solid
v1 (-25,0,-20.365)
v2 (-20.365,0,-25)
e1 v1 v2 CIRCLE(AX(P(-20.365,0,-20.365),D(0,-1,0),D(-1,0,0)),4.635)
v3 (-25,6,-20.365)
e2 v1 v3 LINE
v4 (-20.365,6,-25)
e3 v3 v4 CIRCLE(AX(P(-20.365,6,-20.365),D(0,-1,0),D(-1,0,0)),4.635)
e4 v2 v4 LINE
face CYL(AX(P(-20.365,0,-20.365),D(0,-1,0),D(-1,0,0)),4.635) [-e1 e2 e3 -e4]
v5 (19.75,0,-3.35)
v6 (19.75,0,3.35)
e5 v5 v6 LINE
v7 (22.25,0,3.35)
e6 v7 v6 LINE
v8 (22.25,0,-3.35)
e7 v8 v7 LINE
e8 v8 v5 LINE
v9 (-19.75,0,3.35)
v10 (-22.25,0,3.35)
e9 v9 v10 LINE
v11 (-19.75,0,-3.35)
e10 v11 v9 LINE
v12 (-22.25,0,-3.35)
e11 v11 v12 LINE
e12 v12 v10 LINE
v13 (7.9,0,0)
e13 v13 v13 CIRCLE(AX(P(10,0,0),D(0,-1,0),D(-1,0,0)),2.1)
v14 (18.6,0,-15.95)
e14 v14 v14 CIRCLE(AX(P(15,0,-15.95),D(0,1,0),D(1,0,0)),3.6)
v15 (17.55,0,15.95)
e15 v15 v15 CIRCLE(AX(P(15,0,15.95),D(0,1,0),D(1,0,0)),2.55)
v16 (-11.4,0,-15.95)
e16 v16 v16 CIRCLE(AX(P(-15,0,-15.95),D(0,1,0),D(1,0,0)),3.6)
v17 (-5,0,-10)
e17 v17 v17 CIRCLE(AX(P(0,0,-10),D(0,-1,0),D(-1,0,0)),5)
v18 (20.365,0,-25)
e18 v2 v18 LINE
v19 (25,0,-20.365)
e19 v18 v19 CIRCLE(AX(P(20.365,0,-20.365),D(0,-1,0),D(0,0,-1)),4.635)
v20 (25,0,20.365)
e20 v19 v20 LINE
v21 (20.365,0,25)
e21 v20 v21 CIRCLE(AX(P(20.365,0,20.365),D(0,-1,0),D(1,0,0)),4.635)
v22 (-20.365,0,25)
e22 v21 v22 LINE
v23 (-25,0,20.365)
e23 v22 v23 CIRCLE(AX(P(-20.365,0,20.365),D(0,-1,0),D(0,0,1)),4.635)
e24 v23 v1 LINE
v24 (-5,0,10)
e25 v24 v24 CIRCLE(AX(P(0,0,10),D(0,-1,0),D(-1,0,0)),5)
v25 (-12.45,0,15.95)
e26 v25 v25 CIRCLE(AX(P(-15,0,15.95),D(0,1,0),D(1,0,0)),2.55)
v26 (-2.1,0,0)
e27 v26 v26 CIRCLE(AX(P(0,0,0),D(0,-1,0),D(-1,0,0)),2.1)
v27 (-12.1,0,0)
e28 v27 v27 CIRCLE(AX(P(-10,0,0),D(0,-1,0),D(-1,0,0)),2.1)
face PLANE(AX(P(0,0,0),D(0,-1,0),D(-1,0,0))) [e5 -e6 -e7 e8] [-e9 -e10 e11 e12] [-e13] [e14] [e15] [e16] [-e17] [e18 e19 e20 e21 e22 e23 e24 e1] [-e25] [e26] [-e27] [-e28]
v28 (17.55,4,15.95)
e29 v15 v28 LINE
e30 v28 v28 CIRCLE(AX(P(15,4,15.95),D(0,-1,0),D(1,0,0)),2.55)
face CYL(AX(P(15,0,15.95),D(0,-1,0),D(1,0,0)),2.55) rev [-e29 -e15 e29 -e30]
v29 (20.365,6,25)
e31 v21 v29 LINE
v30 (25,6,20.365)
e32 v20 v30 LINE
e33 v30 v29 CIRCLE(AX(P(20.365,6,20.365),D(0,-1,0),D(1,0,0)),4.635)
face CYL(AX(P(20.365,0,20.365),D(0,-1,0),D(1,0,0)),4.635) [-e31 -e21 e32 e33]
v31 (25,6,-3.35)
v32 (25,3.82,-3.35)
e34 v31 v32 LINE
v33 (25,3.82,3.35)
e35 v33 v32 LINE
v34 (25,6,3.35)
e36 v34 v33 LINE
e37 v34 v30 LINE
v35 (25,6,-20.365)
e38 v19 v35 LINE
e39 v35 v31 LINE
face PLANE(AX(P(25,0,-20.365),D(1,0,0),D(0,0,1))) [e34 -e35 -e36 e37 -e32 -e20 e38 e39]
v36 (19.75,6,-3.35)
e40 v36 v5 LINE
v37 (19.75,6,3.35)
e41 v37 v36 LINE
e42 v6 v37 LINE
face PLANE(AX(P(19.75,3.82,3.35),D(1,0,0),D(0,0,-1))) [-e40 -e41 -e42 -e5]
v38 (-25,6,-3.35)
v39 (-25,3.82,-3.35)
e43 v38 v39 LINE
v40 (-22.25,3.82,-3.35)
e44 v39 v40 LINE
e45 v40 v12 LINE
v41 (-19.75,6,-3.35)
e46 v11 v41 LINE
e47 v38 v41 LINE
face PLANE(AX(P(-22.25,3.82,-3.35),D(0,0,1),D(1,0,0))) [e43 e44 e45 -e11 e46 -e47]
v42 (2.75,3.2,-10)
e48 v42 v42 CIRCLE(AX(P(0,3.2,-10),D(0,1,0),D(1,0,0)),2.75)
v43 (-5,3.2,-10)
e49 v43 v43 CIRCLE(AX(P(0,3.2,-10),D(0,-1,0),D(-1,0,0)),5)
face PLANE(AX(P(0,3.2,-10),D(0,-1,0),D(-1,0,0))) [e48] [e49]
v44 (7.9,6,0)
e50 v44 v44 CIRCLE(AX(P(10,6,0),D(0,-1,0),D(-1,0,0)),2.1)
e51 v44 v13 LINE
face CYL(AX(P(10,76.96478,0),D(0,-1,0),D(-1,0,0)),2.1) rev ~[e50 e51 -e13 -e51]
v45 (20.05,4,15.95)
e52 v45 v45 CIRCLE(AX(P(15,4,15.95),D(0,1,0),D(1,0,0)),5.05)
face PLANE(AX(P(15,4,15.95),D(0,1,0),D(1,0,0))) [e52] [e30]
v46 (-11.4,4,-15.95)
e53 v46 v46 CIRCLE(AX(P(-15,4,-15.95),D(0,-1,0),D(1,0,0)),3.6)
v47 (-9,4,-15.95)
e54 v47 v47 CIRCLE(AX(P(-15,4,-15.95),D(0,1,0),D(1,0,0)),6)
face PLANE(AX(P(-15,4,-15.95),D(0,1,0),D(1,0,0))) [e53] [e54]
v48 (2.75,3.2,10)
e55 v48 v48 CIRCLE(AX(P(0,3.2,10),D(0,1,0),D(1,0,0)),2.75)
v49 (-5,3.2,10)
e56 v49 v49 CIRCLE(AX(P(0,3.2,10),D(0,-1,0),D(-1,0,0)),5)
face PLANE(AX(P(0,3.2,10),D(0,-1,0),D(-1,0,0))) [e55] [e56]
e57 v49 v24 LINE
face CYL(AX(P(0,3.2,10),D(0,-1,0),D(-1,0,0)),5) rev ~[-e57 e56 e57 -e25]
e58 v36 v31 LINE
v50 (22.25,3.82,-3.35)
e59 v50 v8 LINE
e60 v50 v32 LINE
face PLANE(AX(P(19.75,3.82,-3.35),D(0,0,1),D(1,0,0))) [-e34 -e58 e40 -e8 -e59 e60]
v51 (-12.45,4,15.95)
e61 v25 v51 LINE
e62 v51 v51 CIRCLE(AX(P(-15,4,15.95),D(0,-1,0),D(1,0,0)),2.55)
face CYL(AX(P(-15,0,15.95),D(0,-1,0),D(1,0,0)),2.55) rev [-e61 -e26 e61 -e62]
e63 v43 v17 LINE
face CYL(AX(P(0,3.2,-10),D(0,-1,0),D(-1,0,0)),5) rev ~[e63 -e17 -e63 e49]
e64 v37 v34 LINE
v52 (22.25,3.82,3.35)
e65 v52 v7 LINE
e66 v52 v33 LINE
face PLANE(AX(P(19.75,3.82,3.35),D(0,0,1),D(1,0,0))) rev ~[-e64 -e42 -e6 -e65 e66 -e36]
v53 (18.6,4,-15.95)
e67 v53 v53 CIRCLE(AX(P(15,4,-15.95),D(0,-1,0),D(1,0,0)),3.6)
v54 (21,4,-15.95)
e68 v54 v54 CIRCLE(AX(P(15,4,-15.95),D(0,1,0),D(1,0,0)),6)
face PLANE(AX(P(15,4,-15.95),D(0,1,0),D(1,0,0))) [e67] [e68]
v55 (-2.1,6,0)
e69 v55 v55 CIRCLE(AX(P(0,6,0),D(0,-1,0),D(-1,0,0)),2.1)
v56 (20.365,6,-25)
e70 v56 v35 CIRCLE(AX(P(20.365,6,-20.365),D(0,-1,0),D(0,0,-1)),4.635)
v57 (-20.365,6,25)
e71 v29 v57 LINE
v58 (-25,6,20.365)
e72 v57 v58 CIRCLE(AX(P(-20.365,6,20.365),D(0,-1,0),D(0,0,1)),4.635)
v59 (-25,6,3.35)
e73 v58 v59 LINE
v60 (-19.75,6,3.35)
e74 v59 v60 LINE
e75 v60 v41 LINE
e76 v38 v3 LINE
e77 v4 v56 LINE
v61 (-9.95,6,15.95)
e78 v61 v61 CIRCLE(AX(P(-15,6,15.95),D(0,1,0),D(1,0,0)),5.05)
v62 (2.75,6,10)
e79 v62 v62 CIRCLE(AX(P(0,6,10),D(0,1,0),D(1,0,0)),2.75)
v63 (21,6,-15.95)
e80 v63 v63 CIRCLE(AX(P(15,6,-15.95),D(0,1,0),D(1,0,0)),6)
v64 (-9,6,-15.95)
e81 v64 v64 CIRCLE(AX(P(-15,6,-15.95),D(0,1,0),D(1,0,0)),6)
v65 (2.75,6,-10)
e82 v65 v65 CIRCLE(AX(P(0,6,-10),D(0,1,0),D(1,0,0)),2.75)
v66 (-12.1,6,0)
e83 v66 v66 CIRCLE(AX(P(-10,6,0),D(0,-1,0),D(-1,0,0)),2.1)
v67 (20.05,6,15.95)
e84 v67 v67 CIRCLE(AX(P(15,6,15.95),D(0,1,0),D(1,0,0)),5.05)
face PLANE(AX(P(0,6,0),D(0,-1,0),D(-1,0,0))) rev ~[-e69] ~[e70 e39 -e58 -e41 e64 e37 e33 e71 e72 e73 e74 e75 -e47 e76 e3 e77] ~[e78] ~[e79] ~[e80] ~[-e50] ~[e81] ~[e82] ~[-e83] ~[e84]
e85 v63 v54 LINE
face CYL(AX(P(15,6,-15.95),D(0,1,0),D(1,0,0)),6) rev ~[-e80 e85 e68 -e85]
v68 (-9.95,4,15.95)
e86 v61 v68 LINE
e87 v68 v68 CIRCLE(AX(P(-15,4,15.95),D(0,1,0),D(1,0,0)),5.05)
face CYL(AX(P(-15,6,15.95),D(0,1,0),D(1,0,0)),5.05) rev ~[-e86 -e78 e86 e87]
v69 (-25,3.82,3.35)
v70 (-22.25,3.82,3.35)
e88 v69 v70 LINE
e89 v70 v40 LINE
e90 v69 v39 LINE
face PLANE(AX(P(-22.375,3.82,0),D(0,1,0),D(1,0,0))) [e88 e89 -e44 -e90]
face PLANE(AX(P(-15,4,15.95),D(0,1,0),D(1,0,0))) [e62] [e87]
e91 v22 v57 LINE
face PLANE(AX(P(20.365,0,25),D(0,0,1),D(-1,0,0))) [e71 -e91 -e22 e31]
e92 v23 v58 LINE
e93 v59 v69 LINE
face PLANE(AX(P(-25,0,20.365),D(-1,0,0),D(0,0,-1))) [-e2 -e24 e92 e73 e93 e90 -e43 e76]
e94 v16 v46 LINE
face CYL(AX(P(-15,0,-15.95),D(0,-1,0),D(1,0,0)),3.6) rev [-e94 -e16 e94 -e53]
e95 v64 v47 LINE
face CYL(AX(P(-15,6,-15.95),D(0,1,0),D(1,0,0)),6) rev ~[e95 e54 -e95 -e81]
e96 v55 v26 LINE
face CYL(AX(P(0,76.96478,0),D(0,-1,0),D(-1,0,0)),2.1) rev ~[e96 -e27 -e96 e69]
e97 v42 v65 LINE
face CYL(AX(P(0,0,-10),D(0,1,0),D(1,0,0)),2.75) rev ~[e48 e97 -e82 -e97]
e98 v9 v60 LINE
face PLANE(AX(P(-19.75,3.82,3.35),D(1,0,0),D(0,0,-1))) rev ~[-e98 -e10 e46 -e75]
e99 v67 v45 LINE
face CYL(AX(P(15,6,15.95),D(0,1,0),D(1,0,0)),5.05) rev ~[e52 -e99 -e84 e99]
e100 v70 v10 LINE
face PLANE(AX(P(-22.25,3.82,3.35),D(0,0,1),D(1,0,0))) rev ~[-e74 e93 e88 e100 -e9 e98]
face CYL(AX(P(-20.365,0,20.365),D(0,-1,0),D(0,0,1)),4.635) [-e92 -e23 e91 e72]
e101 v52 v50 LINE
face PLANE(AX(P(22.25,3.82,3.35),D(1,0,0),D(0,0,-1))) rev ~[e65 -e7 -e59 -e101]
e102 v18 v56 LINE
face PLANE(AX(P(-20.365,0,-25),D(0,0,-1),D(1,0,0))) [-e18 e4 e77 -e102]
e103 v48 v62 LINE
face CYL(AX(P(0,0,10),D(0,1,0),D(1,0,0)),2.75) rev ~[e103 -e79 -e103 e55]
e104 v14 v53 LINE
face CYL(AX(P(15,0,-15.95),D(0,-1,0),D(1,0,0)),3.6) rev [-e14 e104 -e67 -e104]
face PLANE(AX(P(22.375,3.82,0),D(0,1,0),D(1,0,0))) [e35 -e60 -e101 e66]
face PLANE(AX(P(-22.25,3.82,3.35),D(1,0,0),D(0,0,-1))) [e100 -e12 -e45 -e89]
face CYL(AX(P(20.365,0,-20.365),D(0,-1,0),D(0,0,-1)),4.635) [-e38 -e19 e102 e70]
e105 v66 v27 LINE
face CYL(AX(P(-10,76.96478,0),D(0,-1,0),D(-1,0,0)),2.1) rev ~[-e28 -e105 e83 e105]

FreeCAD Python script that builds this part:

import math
import FreeCAD as App
import Part
import Sketcher

V = App.Vector


def add_polygon(sketch, points):
    """Adds a closed chain of lines whose ends are joined by coincident constraints."""
    first, n = sketch.GeometryCount, len(points)
    for a, b in zip(points, points[1:] + points[:1]):
        sketch.addGeometry(Part.LineSegment(App.Vector(*a, 0), App.Vector(*b, 0)), False)
    for i in range(n):
        sketch.addConstraint(Sketcher.Constraint("Coincident", first + i, 2, first + (i + 1) % n, 1))

doc = App.newDocument("Part")
params = doc.addObject("Spreadsheet::Sheet", "Params")
for row, (alias, value) in enumerate([
    ("sketch1_diameter", "5.1 mm"),
    ("sketch1_diameter2", "7.2 mm"),
    ("pad1_length", "6 mm"),
    ("sketch2_diameter", "4.2 mm"),
    ("hole_diameter", "4.2 mm"),
    ("sketch3_diameter", "12 mm"),
    ("sketch3_diameter2", "10.1 mm"),
    ("pocket1_length", "2 mm"),
    ("sketch4_height", "6.7 mm"),
    ("sketch4_width", "5.25 mm"),
    ("pocket2_length", "2.18 mm"),
    ("sketch5_width", "2.5 mm"),
    ("sketch5_height", "6.7 mm"),
    ("sketch6_diameter", "5.5 mm"),
    ("hole2_diameter", "5.5 mm"),
    ("hole2_cbore_diameter", "10 mm"),
    ("hole2_cbore_depth", "3.2 mm"),
], start=1):
    params.set(f"A{row}", alias)
    params.set(f"B{row}", "=" + value)
    params.setAlias(f"B{row}", alias)

body = doc.addObject("PartDesign::Body", "Body")

sketch1 = body.newObject("Sketcher::SketchObject", "Sketch")
sketch1.AttachmentSupport = (doc.getObject("XZ_Plane"), [""])
sketch1.MapMode = "FlatFace"
sketch1.addGeometry([
    Part.LineSegment(V(-20.4, 25, 0), V(20.4, 25, 0)),
    Part.ArcOfCircle(Part.Circle(V(20.4, 20.4, 0), V(0, 0, 1), 4.6), math.radians(0), math.radians(90)),
    Part.LineSegment(V(25, 20.4, 0), V(25, -20.4, 0)),
    Part.ArcOfCircle(Part.Circle(V(20.4, -20.4, 0), V(0, 0, 1), 4.6), math.radians(-90), math.radians(0)),
    Part.LineSegment(V(20.4, -25, 0), V(-20.4, -25, 0)),
    Part.ArcOfCircle(Part.Circle(V(-20.4, -20.4, 0), V(0, 0, 1), 4.6), math.radians(180), math.radians(270)),
    Part.LineSegment(V(-25, -20.4, 0), V(-25, 20.4, 0)),
    Part.ArcOfCircle(Part.Circle(V(-20.4, 20.4, 0), V(0, 0, 1), 4.6), math.radians(90), math.radians(180)),
    Part.Circle(V(15, 15.9, 0), V(0, 0, 1), 2.5),
    Part.Circle(V(-15, 15.9, 0), V(0, 0, 1), 2.5),
    Part.Circle(V(15, -15.9, 0), V(0, 0, 1), 3.6),
    Part.Circle(V(-15, -15.9, 0), V(0, 0, 1), 3.6),
], False)
sketch1.addConstraint([
    Sketcher.Constraint("Tangent", 0, 2, 1, 2),
    Sketcher.Constraint("Tangent", 1, 1, 2, 1),
    Sketcher.Constraint("Tangent", 2, 2, 3, 2),
    Sketcher.Constraint("Tangent", 3, 1, 4, 1),
    Sketcher.Constraint("Tangent", 4, 2, 5, 2),
    Sketcher.Constraint("Tangent", 5, 1, 6, 1),
    Sketcher.Constraint("Tangent", 6, 2, 7, 2),
    Sketcher.Constraint("Tangent", 7, 1, 0, 1),
    Sketcher.Constraint("Horizontal", 0),
    Sketcher.Constraint("Vertical", 2),
    Sketcher.Constraint("Horizontal", 4),
    Sketcher.Constraint("Vertical", 6),
    Sketcher.Constraint("Equal", 1, 3),
    Sketcher.Constraint("Equal", 3, 5),
    Sketcher.Constraint("Equal", 5, 7),
    Sketcher.Constraint("Equal", 8, 9),
    Sketcher.Constraint("Equal", 10, 11),
    Sketcher.Constraint("Symmetric", 1, 3, 5, 3, -1, 1),
    Sketcher.Constraint("Symmetric", 9, 3, 10, 3, -1, 1),
    Sketcher.Constraint("Symmetric", 8, 3, 11, 3, -1, 1),
    Sketcher.Constraint("Symmetric", 8, 3, 9, 3, -2),
    Sketcher.Constraint("Equal", 4, 2),
    Sketcher.Constraint("Diameter", 8, 5.1),
    Sketcher.Constraint("Diameter", 10, 7.2),
    Sketcher.Constraint("DistanceX", -1, 1, 8, 3, 15.0),
    Sketcher.Constraint("DistanceY", -1, 1, 0, 2, 25.0),
    Sketcher.Constraint("Radius", 1, 4.635),
    Sketcher.Constraint("DistanceY", 10, 3, 8, 3, 31.9),
])
sketch1.setExpression("Constraints[22]", "Params.sketch1_diameter")
sketch1.setExpression("Constraints[23]", "Params.sketch1_diameter2")
pad1 = body.newObject("PartDesign::Pad", "Pad")
pad1.Profile = sketch1
pad1.setExpression("Length", "Params.pad1_length")
pad1.Reversed = True

sketch2 = body.newObject("Sketcher::SketchObject", "Sketch001")
sketch2.AttachmentSupport = (doc.getObject("XZ_Plane"), [""])
sketch2.MapMode = "FlatFace"
sketch2.AttachmentOffset = App.Placement(V(0, 0, -6), App.Rotation())
sketch2.addGeometry([
    Part.Circle(V(0, -10, 0), V(0, 0, 1), 2.1),
    Part.Circle(V(-10, 0, 0), V(0, 0, 1), 2.1),
    Part.Circle(V(0, 0, 0), V(0, 0, 1), 2.1),
    Part.Circle(V(0, 10, 0), V(0, 0, 1), 2.1),
    Part.Circle(V(10, 0, 0), V(0, 0, 1), 2.1),
], False)
sketch2.addConstraint([
    Sketcher.Constraint("Coincident", 2, 3, -1, 1),
    Sketcher.Constraint("Equal", 0, 1),
    Sketcher.Constraint("Equal", 1, 2),
    Sketcher.Constraint("Equal", 2, 3),
    Sketcher.Constraint("Equal", 3, 4),
    Sketcher.Constraint("Symmetric", 0, 3, 3, 3, -1, 1),
    Sketcher.Constraint("Symmetric", 1, 3, 4, 3, -1, 1),
    Sketcher.Constraint("PointOnObject", 0, 3, -2),
    Sketcher.Constraint("PointOnObject", 1, 3, -1),
    Sketcher.Constraint("Diameter", 0, 4.2),
    Sketcher.Constraint("DistanceY", 0, 3, -1, 1, 10.0),
    Sketcher.Constraint("DistanceX", 1, 3, -1, 1, 10.0),
])
sketch2.setExpression("Constraints[9]", "Params.sketch2_diameter")
doc.recompute()
hole = body.newObject("PartDesign::Hole", "Hole")
hole.Profile = sketch2
hole.ThreadType = "None"
hole.setExpression("Diameter", "Params.hole_diameter")
hole.DepthType = "ThroughAll"
hole.Reversed = True

sketch3 = body.newObject("Sketcher::SketchObject", "Sketch002")
sketch3.AttachmentSupport = (doc.getObject("XZ_Plane"), [""])
sketch3.MapMode = "FlatFace"
sketch3.AttachmentOffset = App.Placement(V(0, 0, -6), App.Rotation())
sketch3.addGeometry([
    Part.Circle(V(-15, -16, 0), V(0, 0, 1), 6),
    Part.Circle(V(15, -16, 0), V(0, 0, 1), 6),
    Part.Circle(V(15, 16, 0), V(0, 0, 1), 5),
    Part.Circle(V(-15, 16, 0), V(0, 0, 1), 5),
], False)
sketch3.addConstraint([
    Sketcher.Constraint("Equal", 0, 1),
    Sketcher.Constraint("Equal", 2, 3),
    Sketcher.Constraint("Symmetric", 0, 3, 2, 3, -1, 1),
    Sketcher.Constraint("Symmetric", 1, 3, 3, 3, -1, 1),
    Sketcher.Constraint("Symmetric", 0, 3, 1, 3, -2),
    Sketcher.Constraint("Diameter", 0, 12.0),
    Sketcher.Constraint("Diameter", 2, 10.1),
    Sketcher.Constraint("DistanceX", 0, 3, -1, 1, 15.0),
    Sketcher.Constraint("DistanceY", 1, 3, 2, 3, 31.9),
])
sketch3.setExpression("Constraints[5]", "Params.sketch3_diameter")
sketch3.setExpression("Constraints[6]", "Params.sketch3_diameter2")
pocket1 = body.newObject("PartDesign::Pocket", "Pocket")
pocket1.Profile = sketch3
pocket1.setExpression("Length", "Params.pocket1_length")
pocket1.Reversed = True

sketch4 = body.newObject("Sketcher::SketchObject", "Sketch003")
sketch4.AttachmentSupport = (doc.getObject("XZ_Plane"), [""])
sketch4.MapMode = "FlatFace"
sketch4.AttachmentOffset = App.Placement(V(0, 0, -6), App.Rotation())
add_polygon(sketch4, [(-25, -3), (-25, 3), (-20, 3), (-20, -3)])
add_polygon(sketch4, [(20, -3), (20, 3), (25, 3), (25, -3)])
sketch4.addConstraint([
    Sketcher.Constraint("Vertical", 0),
    Sketcher.Constraint("Horizontal", 1),
    Sketcher.Constraint("Vertical", 2),
    Sketcher.Constraint("Horizontal", 3),
    Sketcher.Constraint("Vertical", 4),
    Sketcher.Constraint("Horizontal", 5),
    Sketcher.Constraint("Vertical", 6),
    Sketcher.Constraint("Horizontal", 7),
    Sketcher.Constraint("Symmetric", 2, 2, 4, 2, -1, 1),
    Sketcher.Constraint("Symmetric", 0, 2, 6, 2, -1, 1),
    Sketcher.Constraint("Horizontal", 1, 2, 4, 2),
    Sketcher.Constraint("DistanceY", 0, 1, 0, 2, 6.7),
    Sketcher.Constraint("DistanceX", 0, 2, -1, 1, 25.0),
    Sketcher.Constraint("DistanceX", 1, 1, 1, 2, 5.25),
])
sketch4.setExpression("Constraints[19]", "Params.sketch4_height")
sketch4.setExpression("Constraints[21]", "Params.sketch4_width")
pocket2 = body.newObject("PartDesign::Pocket", "Pocket001")
pocket2.Profile = sketch4
pocket2.setExpression("Length", "Params.pocket2_length")
pocket2.Reversed = True

sketch5 = body.newObject("Sketcher::SketchObject", "Sketch004")
sketch5.AttachmentSupport = (doc.getObject("XZ_Plane"), [""])
sketch5.MapMode = "FlatFace"
sketch5.AttachmentOffset = App.Placement(V(0, 0, -3.82), App.Rotation())
add_polygon(sketch5, [(-22.2, -3.4), (-22.2, 3.4), (-19.8, 3.4), (-19.8, -3.4)])
add_polygon(sketch5, [(19.8, -3.4), (19.8, 3.4), (22.2, 3.4), (22.2, -3.4)])
sketch5.addConstraint([
    Sketcher.Constraint("Vertical", 0),
    Sketcher.Constraint("Horizontal", 1),
    Sketcher.Constraint("Vertical", 2),
    Sketcher.Constraint("Horizontal", 3),
    Sketcher.Constraint("Vertical", 4),
    Sketcher.Constraint("Horizontal", 5),
    Sketcher.Constraint("Vertical", 6),
    Sketcher.Constraint("Horizontal", 7),
    Sketcher.Constraint("Symmetric", 2, 2, 4, 2, -1, 1),
    Sketcher.Constraint("Symmetric", 0, 2, 6, 2, -1, 1),
    Sketcher.Constraint("Horizontal", 1, 2, 4, 2),
    Sketcher.Constraint("DistanceX", 1, 1, 1, 2, 2.5),
    Sketcher.Constraint("DistanceY", 0, 1, 0, 2, 6.7),
    Sketcher.Constraint("DistanceX", 0, 2, 4, 2, 42.0),
])
sketch5.setExpression("Constraints[19]", "Params.sketch5_width")
sketch5.setExpression("Constraints[20]", "Params.sketch5_height")
pocket3 = body.newObject("PartDesign::Pocket", "Pocket002")
pocket3.Profile = sketch5
pocket3.Type = "ThroughAll"
pocket3.Reversed = True

sketch6 = body.newObject("Sketcher::SketchObject", "Sketch005")
sketch6.AttachmentSupport = (doc.getObject("XZ_Plane"), [""])
sketch6.MapMode = "FlatFace"
sketch6.addGeometry([
    Part.Circle(V(0, -10, 0), V(0, 0, 1), 2.8),
    Part.Circle(V(0, 10, 0), V(0, 0, 1), 2.8),
], False)
sketch6.addConstraint([
    Sketcher.Constraint("Equal", 0, 1),
    Sketcher.Constraint("Symmetric", 0, 3, 1, 3, -1, 1),
    Sketcher.Constraint("PointOnObject", 0, 3, -2),
    Sketcher.Constraint("Diameter", 0, 5.5),
    Sketcher.Constraint("DistanceY", 0, 3, -1, 1, 10.0),
])
sketch6.setExpression("Constraints[3]", "Params.sketch6_diameter")
doc.recompute()
hole2 = body.newObject("PartDesign::Hole", "Hole001")
hole2.Profile = sketch6
hole2.ThreadType = "None"
hole2.setExpression("Diameter", "Params.hole2_diameter")
hole2.DepthType = "ThroughAll"
hole2.HoleCutType = "Counterbore"
hole2.setExpression("HoleCutDiameter", "Params.hole2_cbore_diameter")
hole2.setExpression("HoleCutDepth", "Params.hole2_cbore_depth")

doc.recompute()
